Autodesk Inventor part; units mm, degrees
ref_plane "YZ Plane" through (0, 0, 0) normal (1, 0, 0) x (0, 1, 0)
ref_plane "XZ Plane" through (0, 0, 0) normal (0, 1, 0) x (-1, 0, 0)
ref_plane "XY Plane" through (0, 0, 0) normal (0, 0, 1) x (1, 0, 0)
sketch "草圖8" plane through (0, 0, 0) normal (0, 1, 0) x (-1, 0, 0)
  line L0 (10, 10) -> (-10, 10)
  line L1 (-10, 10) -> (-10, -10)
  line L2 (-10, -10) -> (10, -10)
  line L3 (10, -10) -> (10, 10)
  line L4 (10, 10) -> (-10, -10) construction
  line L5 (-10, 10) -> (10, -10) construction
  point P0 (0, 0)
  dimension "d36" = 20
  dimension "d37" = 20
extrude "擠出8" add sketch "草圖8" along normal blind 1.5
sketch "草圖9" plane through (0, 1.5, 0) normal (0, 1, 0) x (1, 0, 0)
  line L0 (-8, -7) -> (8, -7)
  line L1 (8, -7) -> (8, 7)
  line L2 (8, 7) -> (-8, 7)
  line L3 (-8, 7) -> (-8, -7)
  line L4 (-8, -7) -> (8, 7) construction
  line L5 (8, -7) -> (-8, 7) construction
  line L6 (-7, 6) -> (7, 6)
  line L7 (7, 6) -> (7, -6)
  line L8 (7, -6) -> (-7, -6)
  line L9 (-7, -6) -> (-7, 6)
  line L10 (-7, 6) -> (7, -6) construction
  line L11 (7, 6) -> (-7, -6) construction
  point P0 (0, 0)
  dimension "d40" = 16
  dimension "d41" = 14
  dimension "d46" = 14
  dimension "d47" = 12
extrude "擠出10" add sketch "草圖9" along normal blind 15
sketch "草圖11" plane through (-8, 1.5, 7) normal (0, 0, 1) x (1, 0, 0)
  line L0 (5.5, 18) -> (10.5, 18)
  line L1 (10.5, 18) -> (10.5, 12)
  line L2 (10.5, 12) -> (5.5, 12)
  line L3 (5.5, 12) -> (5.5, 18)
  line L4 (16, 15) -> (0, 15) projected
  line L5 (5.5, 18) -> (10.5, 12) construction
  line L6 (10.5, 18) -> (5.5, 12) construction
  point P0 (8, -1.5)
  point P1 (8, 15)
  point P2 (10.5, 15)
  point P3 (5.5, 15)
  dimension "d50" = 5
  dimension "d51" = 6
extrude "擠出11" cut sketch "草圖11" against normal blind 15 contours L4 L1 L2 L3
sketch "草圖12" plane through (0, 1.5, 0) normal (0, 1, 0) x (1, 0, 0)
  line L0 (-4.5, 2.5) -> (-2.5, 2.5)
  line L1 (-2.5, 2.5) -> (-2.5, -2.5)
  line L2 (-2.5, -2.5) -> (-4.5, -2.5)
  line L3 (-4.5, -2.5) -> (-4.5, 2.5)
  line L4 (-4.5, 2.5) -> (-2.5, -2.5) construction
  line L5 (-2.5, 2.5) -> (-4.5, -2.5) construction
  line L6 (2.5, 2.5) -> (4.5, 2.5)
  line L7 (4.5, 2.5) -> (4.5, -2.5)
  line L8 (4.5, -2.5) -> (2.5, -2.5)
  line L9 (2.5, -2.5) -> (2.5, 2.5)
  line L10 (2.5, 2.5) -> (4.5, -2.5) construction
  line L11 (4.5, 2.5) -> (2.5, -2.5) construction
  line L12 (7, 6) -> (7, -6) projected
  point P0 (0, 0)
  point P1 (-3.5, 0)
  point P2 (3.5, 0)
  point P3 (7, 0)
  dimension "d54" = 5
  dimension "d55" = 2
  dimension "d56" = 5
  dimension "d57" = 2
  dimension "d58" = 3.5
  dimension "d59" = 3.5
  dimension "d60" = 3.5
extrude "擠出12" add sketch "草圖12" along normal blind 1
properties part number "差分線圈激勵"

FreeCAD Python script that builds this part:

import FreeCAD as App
import Part
import Sketcher
Q = App.Units.Quantity

doc = App.newDocument("Part")
body = doc.addObject("PartDesign::Body", "Body")

# Sketch on XZ plane
sketch1 = body.newObject("Sketcher::SketchObject", "Sketch")
sketch1.AttachmentSupport = (doc.getObject("XZ_Plane"), [""])
sketch1.MapMode = "FlatFace"
sketch1.addGeometry([
    Part.LineSegment(App.Vector(-10, -10, 0), App.Vector(-10, 10, 0)),
    Part.LineSegment(App.Vector(-10, 10, 0), App.Vector(10, 10, 0)),
    Part.LineSegment(App.Vector(10, 10, 0), App.Vector(10, -10, 0)),
    Part.LineSegment(App.Vector(10, -10, 0), App.Vector(-10, -10, 0)),
], False)
sketch1.addConstraint([
    Sketcher.Constraint("Coincident", 0, 2, 1, 1),
    Sketcher.Constraint("Coincident", 1, 2, 2, 1),
    Sketcher.Constraint("Coincident", 2, 2, 3, 1),
    Sketcher.Constraint("Coincident", 3, 2, 0, 1),
    Sketcher.Constraint("Vertical", 0),
    Sketcher.Constraint("Horizontal", 1),
    Sketcher.Constraint("Vertical", 2),
    Sketcher.Constraint("Horizontal", 3),
    Sketcher.Constraint("Symmetric", 0, 2, 2, 2, -1, 1),
    Sketcher.Constraint("Equal", 3, 0),
    Sketcher.Constraint("DistanceX", 1, 1, 1, 2, Q("20 mm")),
])
pad1 = body.newObject("PartDesign::Pad", "Pad")
pad1.Profile = sketch1
pad1.Length = 1.5
pad1.Reversed = True

# Sketch on XZ plane
sketch2 = body.newObject("Sketcher::SketchObject", "Sketch001")
sketch2.AttachmentSupport = (doc.getObject("XZ_Plane"), [""])
sketch2.MapMode = "FlatFace"
sketch2.AttachmentOffset = App.Placement(App.Vector(0, 0, -1.5), App.Rotation())
sketch2.addGeometry([
    Part.LineSegment(App.Vector(-8, -7, 0), App.Vector(-8, 7, 0)),  # 0
    Part.LineSegment(App.Vector(-8, 7, 0), App.Vector(8, 7, 0)),  # 1
    Part.LineSegment(App.Vector(8, 7, 0), App.Vector(8, -7, 0)),  # 2
    Part.LineSegment(App.Vector(8, -7, 0), App.Vector(-8, -7, 0)),  # 3
    Part.LineSegment(App.Vector(-7, 6, 0), App.Vector(-7, -6, 0)),  # 4
    Part.LineSegment(App.Vector(-7, -6, 0), App.Vector(7, -6, 0)),  # 5
    Part.LineSegment(App.Vector(7, -6, 0), App.Vector(7, 6, 0)),  # 6
    Part.LineSegment(App.Vector(7, 6, 0), App.Vector(-7, 6, 0)),  # 7
], False)
sketch2.addConstraint([
    Sketcher.Constraint("Coincident", 0, 2, 1, 1),
    Sketcher.Constraint("Coincident", 1, 2, 2, 1),
    Sketcher.Constraint("Coincident", 2, 2, 3, 1),
    Sketcher.Constraint("Coincident", 3, 2, 0, 1),
    Sketcher.Constraint("Coincident", 4, 2, 5, 1),
    Sketcher.Constraint("Coincident", 5, 2, 6, 1),
    Sketcher.Constraint("Coincident", 6, 2, 7, 1),
    Sketcher.Constraint("Coincident", 7, 2, 4, 1),
    Sketcher.Constraint("Vertical", 0),
    Sketcher.Constraint("Horizontal", 1),
    Sketcher.Constraint("Vertical", 2),
    Sketcher.Constraint("Horizontal", 3),
    Sketcher.Constraint("Vertical", 4),
    Sketcher.Constraint("Horizontal", 5),
    Sketcher.Constraint("Vertical", 6),
    Sketcher.Constraint("Horizontal", 7),
    Sketcher.Constraint("Symmetric", 0, 2, 2, 2, -1, 1),
    Sketcher.Constraint("Symmetric", 4, 2, 6, 2, -1, 1),
    Sketcher.Constraint("Equal", 7, 0),
    Sketcher.Constraint("DistanceX", 1, 1, 1, 2, Q("16 mm")),
    Sketcher.Constraint("DistanceX", 5, 1, 5, 2, Q("14 mm")),
    Sketcher.Constraint("DistanceY", 4, 2, 4, 1, Q("12 mm")),
])
pad2 = body.newObject("PartDesign::Pad", "Pad001")
pad2.Profile = sketch2
pad2.Length = 15
pad2.Reversed = True

# Sketch on XY plane
sketch3 = body.newObject("Sketcher::SketchObject", "Sketch002")
sketch3.AttachmentSupport = (doc.getObject("XY_Plane"), [""])
sketch3.MapMode = "FlatFace"
sketch3.AttachmentOffset = App.Placement(App.Vector(0, 0, 7), App.Rotation())
sketch3.addGeometry([
    Part.LineSegment(App.Vector(2.5, 16.5, 0), App.Vector(-2.5, 16.5, 0)),
    Part.LineSegment(App.Vector(-2.5, 16.5, 0), App.Vector(-2.5, 13.5, 0)),
    Part.LineSegment(App.Vector(-2.5, 13.5, 0), App.Vector(2.5, 13.5, 0)),
    Part.LineSegment(App.Vector(2.5, 13.5, 0), App.Vector(2.5, 16.5, 0)),
], False)
sketch3.addConstraint([
    Sketcher.Constraint("Coincident", 0, 2, 1, 1),
    Sketcher.Constraint("Coincident", 1, 2, 2, 1),
    Sketcher.Constraint("Coincident", 2, 2, 3, 1),
    Sketcher.Constraint("Coincident", 3, 2, 0, 1),
    Sketcher.Constraint("Horizontal", 0),
    Sketcher.Constraint("Vertical", 1),
    Sketcher.Constraint("Horizontal", 2),
    Sketcher.Constraint("Vertical", 3),
    Sketcher.Constraint("DistanceX", 0, 2, 0, 1, Q("5 mm")),
    Sketcher.Constraint("DistanceY", 1, 2, 1, 1, Q("3 mm")),
    Sketcher.Constraint("DistanceX", 0, 2, -1, 1, Q("2.5 mm")),
    Sketcher.Constraint("DistanceY", -1, 1, 0, 2, Q("16.5 mm")),
])
pocket1 = body.newObject("PartDesign::Pocket", "Pocket")
pocket1.Profile = sketch3
pocket1.Length = 15

# Sketch on XZ plane
sketch4 = body.newObject("Sketcher::SketchObject", "Sketch003")
sketch4.AttachmentSupport = (doc.getObject("XZ_Plane"), [""])
sketch4.MapMode = "FlatFace"
sketch4.AttachmentOffset = App.Placement(App.Vector(0, 0, -1.5), App.Rotation())
sketch4.addGeometry([
    Part.LineSegment(App.Vector(-2.5, -2.5, 0), App.Vector(-4.5, -2.5, 0)),  # 0
    Part.LineSegment(App.Vector(-4.5, -2.5, 0), App.Vector(-4.5, 2.5, 0)),  # 1
    Part.LineSegment(App.Vector(-4.5, 2.5, 0), App.Vector(-2.5, 2.5, 0)),  # 2
    Part.LineSegment(App.Vector(-2.5, 2.5, 0), App.Vector(-2.5, -2.5, 0)),  # 3
    Part.LineSegment(App.Vector(4.5, -2.5, 0), App.Vector(2.5, -2.5, 0)),  # 4
    Part.LineSegment(App.Vector(2.5, -2.5, 0), App.Vector(2.5, 2.5, 0)),  # 5
    Part.LineSegment(App.Vector(2.5, 2.5, 0), App.Vector(4.5, 2.5, 0)),  # 6
    Part.LineSegment(App.Vector(4.5, 2.5, 0), App.Vector(4.5, -2.5, 0)),  # 7
], False)
sketch4.addConstraint([
    Sketcher.Constraint("Coincident", 0, 2, 1, 1),
    Sketcher.Constraint("Coincident", 1, 2, 2, 1),
    Sketcher.Constraint("Coincident", 2, 2, 3, 1),
    Sketcher.Constraint("Coincident", 3, 2, 0, 1),
    Sketcher.Constraint("Coincident", 4, 2, 5, 1),
    Sketcher.Constraint("Coincident", 5, 2, 6, 1),
    Sketcher.Constraint("Coincident", 6, 2, 7, 1),
    Sketcher.Constraint("Coincident", 7, 2, 4, 1),
    Sketcher.Constraint("Horizontal", 0),
    Sketcher.Constraint("Vertical", 1),
    Sketcher.Constraint("Horizontal", 2),
    Sketcher.Constraint("Vertical", 3),
    Sketcher.Constraint("Horizontal", 4),
    Sketcher.Constraint("Vertical", 5),
    Sketcher.Constraint("Horizontal", 6),
    Sketcher.Constraint("Vertical", 7),
    Sketcher.Constraint("Symmetric", 2, 2, 4, 2, -1, 1),
    Sketcher.Constraint("Symmetric", 0, 2, 6, 2, -1, 1),
    Sketcher.Constraint("Horizontal", 3, 2, 4, 2),
    Sketcher.Constraint("DistanceX", 0, 2, 0, 1, Q("2 mm")),
    Sketcher.Constraint("DistanceY", 1, 1, 1, 2, Q("5 mm")),
    Sketcher.Constraint("DistanceX", 3, 2, 4, 2, Q("5 mm")),
])
pad3 = body.newObject("PartDesign::Pad", "Pad002")
pad3.Profile = sketch4
pad3.Length = 1
pad3.Reversed = True

doc.recompute()
